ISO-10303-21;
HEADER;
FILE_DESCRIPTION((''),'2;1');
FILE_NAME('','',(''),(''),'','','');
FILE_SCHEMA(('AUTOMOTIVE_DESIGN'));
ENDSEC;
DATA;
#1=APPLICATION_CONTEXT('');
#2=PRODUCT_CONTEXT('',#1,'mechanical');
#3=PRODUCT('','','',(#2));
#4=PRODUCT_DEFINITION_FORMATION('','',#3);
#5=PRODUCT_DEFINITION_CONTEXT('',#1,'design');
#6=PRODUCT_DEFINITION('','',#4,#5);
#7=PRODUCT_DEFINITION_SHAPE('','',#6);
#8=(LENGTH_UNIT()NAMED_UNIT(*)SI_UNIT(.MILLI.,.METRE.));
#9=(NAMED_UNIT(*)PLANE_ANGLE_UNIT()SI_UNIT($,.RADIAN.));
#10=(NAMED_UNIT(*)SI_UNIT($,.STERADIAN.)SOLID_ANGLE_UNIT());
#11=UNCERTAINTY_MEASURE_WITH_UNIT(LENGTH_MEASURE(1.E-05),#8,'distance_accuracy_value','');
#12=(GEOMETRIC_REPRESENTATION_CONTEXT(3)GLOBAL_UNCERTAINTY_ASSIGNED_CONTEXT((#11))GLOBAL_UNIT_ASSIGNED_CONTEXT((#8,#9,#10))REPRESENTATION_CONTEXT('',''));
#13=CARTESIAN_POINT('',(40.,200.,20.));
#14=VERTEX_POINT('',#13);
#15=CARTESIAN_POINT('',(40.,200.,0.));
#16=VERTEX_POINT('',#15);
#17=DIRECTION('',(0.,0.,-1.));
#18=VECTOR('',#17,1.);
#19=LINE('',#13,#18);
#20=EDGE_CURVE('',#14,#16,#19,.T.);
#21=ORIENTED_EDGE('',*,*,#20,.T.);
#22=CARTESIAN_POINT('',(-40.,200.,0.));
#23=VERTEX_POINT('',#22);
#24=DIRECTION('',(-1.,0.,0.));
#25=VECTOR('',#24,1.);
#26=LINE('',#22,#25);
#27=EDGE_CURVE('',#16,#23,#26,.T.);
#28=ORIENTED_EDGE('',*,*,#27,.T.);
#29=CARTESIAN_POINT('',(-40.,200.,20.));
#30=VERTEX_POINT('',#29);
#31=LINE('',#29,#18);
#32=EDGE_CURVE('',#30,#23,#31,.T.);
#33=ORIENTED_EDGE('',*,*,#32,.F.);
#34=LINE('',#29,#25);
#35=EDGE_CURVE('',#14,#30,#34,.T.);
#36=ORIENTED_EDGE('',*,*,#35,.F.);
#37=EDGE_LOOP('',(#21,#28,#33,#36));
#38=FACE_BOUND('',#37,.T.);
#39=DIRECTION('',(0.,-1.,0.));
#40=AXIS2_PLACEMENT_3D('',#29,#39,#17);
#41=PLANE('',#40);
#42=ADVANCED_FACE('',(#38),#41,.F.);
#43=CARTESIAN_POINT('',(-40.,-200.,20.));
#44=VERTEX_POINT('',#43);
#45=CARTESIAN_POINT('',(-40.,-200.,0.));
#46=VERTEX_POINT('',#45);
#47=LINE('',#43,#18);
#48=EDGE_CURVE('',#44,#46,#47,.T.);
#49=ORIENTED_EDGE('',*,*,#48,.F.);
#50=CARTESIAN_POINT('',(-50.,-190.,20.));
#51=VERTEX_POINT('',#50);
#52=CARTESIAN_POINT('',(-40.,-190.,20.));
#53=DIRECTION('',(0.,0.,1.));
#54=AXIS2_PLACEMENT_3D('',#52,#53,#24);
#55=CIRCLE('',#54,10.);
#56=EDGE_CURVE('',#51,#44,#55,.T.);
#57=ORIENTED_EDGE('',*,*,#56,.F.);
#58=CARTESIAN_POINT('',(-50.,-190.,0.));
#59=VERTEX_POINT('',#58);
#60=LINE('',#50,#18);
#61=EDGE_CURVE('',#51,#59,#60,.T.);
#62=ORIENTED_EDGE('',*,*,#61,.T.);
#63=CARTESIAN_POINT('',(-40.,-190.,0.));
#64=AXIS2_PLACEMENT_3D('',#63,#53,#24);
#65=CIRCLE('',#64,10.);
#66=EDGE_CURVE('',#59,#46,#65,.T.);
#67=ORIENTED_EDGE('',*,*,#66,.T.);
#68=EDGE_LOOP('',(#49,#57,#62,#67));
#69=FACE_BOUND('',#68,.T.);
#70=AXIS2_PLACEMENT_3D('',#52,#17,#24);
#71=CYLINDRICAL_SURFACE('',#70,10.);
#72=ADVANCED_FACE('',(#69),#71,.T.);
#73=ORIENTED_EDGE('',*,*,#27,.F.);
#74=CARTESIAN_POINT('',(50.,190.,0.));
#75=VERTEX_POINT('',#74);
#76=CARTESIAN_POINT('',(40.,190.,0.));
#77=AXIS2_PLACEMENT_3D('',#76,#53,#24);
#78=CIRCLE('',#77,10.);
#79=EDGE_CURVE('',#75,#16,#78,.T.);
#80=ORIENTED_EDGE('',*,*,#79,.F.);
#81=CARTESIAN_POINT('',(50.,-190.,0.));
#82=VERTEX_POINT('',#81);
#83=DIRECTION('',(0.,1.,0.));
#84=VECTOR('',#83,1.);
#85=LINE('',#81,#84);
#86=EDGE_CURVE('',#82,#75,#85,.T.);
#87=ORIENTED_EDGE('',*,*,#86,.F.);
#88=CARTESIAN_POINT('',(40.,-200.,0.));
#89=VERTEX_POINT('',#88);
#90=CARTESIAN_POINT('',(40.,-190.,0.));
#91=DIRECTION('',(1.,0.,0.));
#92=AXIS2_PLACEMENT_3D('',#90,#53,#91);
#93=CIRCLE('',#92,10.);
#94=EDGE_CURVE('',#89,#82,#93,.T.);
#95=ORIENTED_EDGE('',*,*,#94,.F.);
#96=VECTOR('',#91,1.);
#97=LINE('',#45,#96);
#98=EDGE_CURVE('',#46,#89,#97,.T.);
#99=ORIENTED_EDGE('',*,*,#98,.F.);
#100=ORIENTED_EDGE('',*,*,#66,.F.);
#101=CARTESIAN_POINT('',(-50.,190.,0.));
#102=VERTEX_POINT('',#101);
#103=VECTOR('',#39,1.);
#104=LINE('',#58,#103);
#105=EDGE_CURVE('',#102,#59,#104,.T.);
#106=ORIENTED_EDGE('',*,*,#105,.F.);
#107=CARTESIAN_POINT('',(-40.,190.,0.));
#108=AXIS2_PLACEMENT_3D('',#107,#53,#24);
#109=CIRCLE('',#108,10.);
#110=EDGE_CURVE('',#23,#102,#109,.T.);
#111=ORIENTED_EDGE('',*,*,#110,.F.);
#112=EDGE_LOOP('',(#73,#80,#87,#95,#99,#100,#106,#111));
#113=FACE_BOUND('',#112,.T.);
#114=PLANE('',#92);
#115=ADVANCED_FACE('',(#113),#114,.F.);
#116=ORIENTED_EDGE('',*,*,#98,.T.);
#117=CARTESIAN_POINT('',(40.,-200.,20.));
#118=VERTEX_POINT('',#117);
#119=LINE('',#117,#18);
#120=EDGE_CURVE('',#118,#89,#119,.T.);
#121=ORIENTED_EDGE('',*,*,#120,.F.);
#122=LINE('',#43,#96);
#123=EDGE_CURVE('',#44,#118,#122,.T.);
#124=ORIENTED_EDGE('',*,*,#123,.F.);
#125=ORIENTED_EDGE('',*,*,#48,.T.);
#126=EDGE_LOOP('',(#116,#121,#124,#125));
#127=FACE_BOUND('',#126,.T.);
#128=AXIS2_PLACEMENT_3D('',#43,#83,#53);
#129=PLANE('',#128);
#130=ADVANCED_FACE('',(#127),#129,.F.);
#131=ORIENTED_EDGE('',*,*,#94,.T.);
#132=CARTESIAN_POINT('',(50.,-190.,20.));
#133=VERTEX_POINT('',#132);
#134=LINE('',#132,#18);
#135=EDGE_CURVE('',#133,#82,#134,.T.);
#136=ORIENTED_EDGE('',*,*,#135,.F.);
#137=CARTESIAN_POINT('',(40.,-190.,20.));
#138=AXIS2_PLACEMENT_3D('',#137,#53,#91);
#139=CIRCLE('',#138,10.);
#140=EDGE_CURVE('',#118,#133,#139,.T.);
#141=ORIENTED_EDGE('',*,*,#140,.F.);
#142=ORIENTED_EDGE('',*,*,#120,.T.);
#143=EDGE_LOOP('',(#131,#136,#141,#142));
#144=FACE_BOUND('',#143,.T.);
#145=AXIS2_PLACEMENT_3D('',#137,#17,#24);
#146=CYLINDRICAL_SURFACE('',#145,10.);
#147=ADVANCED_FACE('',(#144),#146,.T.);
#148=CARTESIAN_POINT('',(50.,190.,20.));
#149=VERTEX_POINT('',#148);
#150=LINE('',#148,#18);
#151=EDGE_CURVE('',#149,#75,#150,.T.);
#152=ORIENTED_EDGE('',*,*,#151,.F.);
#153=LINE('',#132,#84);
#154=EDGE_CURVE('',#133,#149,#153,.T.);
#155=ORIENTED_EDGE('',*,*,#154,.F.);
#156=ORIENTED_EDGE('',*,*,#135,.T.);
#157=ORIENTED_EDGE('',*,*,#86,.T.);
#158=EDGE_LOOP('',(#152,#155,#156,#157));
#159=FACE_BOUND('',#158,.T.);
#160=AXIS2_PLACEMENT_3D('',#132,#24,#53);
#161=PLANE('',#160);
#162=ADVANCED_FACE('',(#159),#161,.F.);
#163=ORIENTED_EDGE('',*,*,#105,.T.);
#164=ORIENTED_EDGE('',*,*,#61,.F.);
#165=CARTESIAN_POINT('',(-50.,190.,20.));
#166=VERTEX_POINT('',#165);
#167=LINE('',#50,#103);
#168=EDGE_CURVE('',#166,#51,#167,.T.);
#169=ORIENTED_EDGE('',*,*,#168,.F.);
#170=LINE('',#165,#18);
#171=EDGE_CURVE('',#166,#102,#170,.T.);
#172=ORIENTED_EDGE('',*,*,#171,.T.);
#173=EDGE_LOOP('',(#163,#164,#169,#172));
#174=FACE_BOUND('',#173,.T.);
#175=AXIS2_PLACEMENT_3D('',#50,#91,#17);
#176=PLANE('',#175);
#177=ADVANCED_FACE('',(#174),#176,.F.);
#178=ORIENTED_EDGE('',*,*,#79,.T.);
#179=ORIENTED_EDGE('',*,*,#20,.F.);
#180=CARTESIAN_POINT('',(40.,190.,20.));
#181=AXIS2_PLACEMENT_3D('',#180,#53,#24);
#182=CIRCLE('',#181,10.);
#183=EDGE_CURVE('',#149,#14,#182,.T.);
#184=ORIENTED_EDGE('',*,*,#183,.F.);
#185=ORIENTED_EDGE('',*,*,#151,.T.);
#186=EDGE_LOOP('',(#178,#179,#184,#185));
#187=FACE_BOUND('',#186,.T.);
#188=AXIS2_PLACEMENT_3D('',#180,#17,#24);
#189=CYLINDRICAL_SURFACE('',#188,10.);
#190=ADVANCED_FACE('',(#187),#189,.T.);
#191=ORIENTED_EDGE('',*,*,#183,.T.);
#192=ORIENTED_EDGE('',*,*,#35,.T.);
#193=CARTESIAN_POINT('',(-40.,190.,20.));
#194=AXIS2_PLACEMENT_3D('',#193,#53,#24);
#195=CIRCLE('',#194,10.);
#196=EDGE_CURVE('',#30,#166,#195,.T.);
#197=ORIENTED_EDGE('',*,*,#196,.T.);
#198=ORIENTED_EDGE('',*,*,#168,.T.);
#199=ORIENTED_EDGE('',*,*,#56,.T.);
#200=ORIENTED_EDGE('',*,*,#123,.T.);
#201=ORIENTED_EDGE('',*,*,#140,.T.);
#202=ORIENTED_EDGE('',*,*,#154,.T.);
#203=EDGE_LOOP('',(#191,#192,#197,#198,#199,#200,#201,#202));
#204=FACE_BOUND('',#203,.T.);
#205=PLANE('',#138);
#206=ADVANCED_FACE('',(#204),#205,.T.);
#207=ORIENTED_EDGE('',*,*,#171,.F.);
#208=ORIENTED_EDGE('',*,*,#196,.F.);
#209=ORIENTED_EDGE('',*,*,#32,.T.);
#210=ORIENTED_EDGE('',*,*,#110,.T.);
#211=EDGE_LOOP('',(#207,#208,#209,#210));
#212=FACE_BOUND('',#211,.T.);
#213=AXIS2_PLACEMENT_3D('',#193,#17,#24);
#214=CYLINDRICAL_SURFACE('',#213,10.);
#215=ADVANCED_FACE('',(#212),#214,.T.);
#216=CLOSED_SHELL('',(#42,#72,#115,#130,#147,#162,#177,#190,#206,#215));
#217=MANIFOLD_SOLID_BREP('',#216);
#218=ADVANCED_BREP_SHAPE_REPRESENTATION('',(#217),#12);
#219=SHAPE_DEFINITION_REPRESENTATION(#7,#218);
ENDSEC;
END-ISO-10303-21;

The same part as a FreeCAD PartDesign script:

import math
import FreeCAD as App
import Part
import Sketcher

V = App.Vector
Q = App.Units.Quantity

doc = App.newDocument("Part")
body = doc.addObject("PartDesign::Body", "Body")

# Sketch on XY plane
sketch1 = body.newObject("Sketcher::SketchObject", "Sketch")
sketch1.AttachmentSupport = (doc.getObject("XY_Plane"), [""])
sketch1.MapMode = "FlatFace"
sketch1.addGeometry(Part.LineSegment(V(-40, -200, 0), V(40, -200, 0)), False)
sketch1.addGeometry(Part.ArcOfCircle(Part.Circle(V(40, -190, 0), V(0, 0, 1), 10), math.radians(-90), math.radians(0)), False)
sketch1.addGeometry(Part.LineSegment(V(50, -190, 0), V(50, 190, 0)), False)
sketch1.addGeometry(Part.ArcOfCircle(Part.Circle(V(40, 190, 0), V(0, 0, 1), 10), math.radians(0), math.radians(90)), False)
sketch1.addGeometry(Part.LineSegment(V(40, 200, 0), V(-40, 200, 0)), False)
sketch1.addGeometry(Part.ArcOfCircle(Part.Circle(V(-40, 190, 0), V(0, 0, 1), 10), math.radians(90), math.radians(180)), False)
sketch1.addGeometry(Part.LineSegment(V(-50, 190, 0), V(-50, -190, 0)), False)
sketch1.addGeometry(Part.ArcOfCircle(Part.Circle(V(-40, -190, 0), V(0, 0, 1), 10), math.radians(180), math.radians(270)), False)
sketch1.addConstraint(Sketcher.Constraint("Tangent", 0, 2, 1, 1))
sketch1.addConstraint(Sketcher.Constraint("Tangent", 1, 2, 2, 1))
sketch1.addConstraint(Sketcher.Constraint("Tangent", 2, 2, 3, 1))
sketch1.addConstraint(Sketcher.Constraint("Tangent", 3, 2, 4, 1))
sketch1.addConstraint(Sketcher.Constraint("Tangent", 4, 2, 5, 1))
sketch1.addConstraint(Sketcher.Constraint("Tangent", 5, 2, 6, 1))
sketch1.addConstraint(Sketcher.Constraint("Tangent", 6, 2, 7, 1))
sketch1.addConstraint(Sketcher.Constraint("Tangent", 7, 2, 0, 1))
sketch1.addConstraint(Sketcher.Constraint("Horizontal", 0))
sketch1.addConstraint(Sketcher.Constraint("Vertical", 2))
sketch1.addConstraint(Sketcher.Constraint("Horizontal", 4))
sketch1.addConstraint(Sketcher.Constraint("Vertical", 6))
sketch1.addConstraint(Sketcher.Constraint("Equal", 1, 3))
sketch1.addConstraint(Sketcher.Constraint("Equal", 3, 5))
sketch1.addConstraint(Sketcher.Constraint("Equal", 5, 7))
sketch1.addConstraint(Sketcher.Constraint("Symmetric", 1, 3, 5, 3, -1, 1))
sketch1.addConstraint(Sketcher.Constraint("Radius", 1, Q("10 mm")))
sketch1.addConstraint(Sketcher.Constraint("DistanceX", 0, 1, 0, 2, Q("80 mm")))
sketch1.addConstraint(Sketcher.Constraint("DistanceY", 2, 1, 2, 2, Q("380 mm")))
pad1 = body.newObject("PartDesign::Pad", "Pad")
pad1.Profile = sketch1
pad1.Length = 20

doc.recompute()
